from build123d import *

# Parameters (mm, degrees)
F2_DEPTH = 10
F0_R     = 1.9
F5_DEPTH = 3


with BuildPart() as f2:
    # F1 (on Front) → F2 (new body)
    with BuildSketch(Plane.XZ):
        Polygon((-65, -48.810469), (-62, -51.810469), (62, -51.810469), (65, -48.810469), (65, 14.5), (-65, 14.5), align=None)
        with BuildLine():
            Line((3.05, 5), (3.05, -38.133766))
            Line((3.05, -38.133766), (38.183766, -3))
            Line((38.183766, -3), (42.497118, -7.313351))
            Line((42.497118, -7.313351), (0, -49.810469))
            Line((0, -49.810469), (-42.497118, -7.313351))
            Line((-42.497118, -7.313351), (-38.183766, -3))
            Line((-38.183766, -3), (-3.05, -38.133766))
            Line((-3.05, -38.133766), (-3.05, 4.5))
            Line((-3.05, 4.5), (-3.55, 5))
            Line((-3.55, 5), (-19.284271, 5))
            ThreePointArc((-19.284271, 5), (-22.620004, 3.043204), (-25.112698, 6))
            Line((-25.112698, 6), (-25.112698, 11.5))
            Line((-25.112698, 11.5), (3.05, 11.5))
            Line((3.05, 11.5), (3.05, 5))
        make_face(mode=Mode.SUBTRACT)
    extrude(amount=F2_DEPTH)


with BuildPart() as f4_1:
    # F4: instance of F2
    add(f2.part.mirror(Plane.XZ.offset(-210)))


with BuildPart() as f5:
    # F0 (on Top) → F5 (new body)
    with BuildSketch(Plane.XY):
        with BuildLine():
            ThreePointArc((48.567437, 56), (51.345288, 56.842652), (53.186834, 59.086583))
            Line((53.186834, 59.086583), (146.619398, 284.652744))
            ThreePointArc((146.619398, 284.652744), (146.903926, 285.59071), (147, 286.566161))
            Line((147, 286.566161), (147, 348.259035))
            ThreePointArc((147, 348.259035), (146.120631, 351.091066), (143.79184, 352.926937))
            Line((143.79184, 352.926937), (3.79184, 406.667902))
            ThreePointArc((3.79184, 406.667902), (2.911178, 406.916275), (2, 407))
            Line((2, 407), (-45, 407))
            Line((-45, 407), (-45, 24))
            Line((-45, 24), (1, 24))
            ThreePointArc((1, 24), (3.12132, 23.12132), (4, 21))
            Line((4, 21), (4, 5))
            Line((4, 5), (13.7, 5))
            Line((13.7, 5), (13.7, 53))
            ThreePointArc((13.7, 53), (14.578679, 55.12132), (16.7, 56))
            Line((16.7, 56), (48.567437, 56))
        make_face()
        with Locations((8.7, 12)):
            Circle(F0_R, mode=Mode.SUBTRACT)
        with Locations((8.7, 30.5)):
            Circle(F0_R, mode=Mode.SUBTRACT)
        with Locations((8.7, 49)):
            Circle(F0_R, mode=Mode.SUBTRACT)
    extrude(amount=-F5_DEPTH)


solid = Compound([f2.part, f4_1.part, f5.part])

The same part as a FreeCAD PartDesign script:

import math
import FreeCAD as App
import Part
import Sketcher

V = App.Vector

doc = App.newDocument("Part")
params = doc.addObject("Spreadsheet::Sheet", "Params")
for row, (alias, value) in enumerate([
    ("sketch1_radius", "3 mm"),
    ("sketch1_width", "124 mm"),
    ("sketch1_width2", "130 mm"),
    ("sketch1_height", "5.5 mm"),
    ("sketch1_length", "6.1 mm"),
    ("pad1_length", "10 mm"),
    ("sketch2_radius", "4.999999 mm"),
    ("sketch2_radius2", "5 mm"),
    ("sketch2_radius3", "3.000001 mm"),
    ("sketch2_radius4", "2.999999 mm"),
    ("sketch2_diameter", "3.8 mm"),
    ("pad2_length", "3 mm"),
], start=1):
    params.set(f"A{row}", alias)
    params.set(f"B{row}", "=" + value)
    params.setAlias(f"B{row}", alias)

body = doc.addObject("PartDesign::Body", "Body")

sketch1 = body.newObject("Sketcher::SketchObject", "Sketch")
sketch1.AttachmentSupport = (doc.getObject("XZ_Plane"), [""])
sketch1.MapMode = "FlatFace"
sketch1.addGeometry([
    Part.LineSegment(V(-65, -48.810469, 0), V(-62, -51.810469, 0)),
    Part.LineSegment(V(-62, -51.810469, 0), V(62, -51.810469, 0)),
    Part.LineSegment(V(62, -51.810469, 0), V(65, -48.810469, 0)),
    Part.LineSegment(V(65, -48.810469, 0), V(65, 14.5, 0)),
    Part.LineSegment(V(65, 14.5, 0), V(-65, 14.5, 0)),
    Part.LineSegment(V(-65, 14.5, 0), V(-65, -48.810469, 0)),
    Part.LineSegment(V(3.05, 11.5, 0), V(3.05, -38.133766, 0)),
    Part.LineSegment(V(3.05, -38.133766, 0), V(38.183766, -3, 0)),
    Part.LineSegment(V(38.183766, -3, 0), V(42.497118, -7.313351, 0)),
    Part.LineSegment(V(42.497118, -7.313351, 0), V(0, -49.810469, 0)),
    Part.LineSegment(V(0, -49.810469, 0), V(-42.497118, -7.313351, 0)),
    Part.LineSegment(V(-42.497118, -7.313351, 0), V(-38.183766, -3, 0)),
    Part.LineSegment(V(-38.183766, -3, 0), V(-3.05, -38.133766, 0)),
    Part.LineSegment(V(-3.05, -38.133766, 0), V(-3.05, 4.5, 0)),
    Part.LineSegment(V(-3.05, 4.5, 0), V(-3.55, 5, 0)),
    Part.LineSegment(V(-3.55, 5, 0), V(-19.284271, 5, 0)),
    Part.ArcOfCircle(Part.Circle(V(-22.112698, 6, 0), V(0, 0, 1), 3), math.radians(179.999991), math.radians(340.528788)),
    Part.LineSegment(V(-25.112698, 6, 0), V(-25.112698, 11.5, 0)),
    Part.LineSegment(V(-25.112698, 11.5, 0), V(3.05, 11.5, 0)),
], False)
sketch1.addConstraint([
    Sketcher.Constraint("Coincident", 0, 2, 1, 1),
    Sketcher.Constraint("Coincident", 1, 2, 2, 1),
    Sketcher.Constraint("Coincident", 2, 2, 3, 1),
    Sketcher.Constraint("Coincident", 3, 2, 4, 1),
    Sketcher.Constraint("Coincident", 4, 2, 5, 1),
    Sketcher.Constraint("Coincident", 5, 2, 0, 1),
    Sketcher.Constraint("Coincident", 6, 2, 7, 1),
    Sketcher.Constraint("Coincident", 7, 2, 8, 1),
    Sketcher.Constraint("Coincident", 8, 2, 9, 1),
    Sketcher.Constraint("Coincident", 9, 2, 10, 1),
    Sketcher.Constraint("Coincident", 10, 2, 11, 1),
    Sketcher.Constraint("Coincident", 11, 2, 12, 1),
    Sketcher.Constraint("Coincident", 12, 2, 13, 1),
    Sketcher.Constraint("Coincident", 13, 2, 14, 1),
    Sketcher.Constraint("Coincident", 14, 2, 15, 1),
    Sketcher.Constraint("Coincident", 15, 2, 16, 2),
    Sketcher.Constraint("Tangent", 16, 1, 17, 1),
    Sketcher.Constraint("Coincident", 17, 2, 18, 1),
    Sketcher.Constraint("Coincident", 18, 2, 6, 1),
    Sketcher.Constraint("Horizontal", 1),
    Sketcher.Constraint("Vertical", 3),
    Sketcher.Constraint("Horizontal", 4),
    Sketcher.Constraint("Vertical", 5),
    Sketcher.Constraint("Vertical", 6),
    Sketcher.Constraint("Vertical", 13),
    Sketcher.Constraint("Horizontal", 15),
    Sketcher.Constraint("Vertical", 17),
    Sketcher.Constraint("Horizontal", 18),
    Sketcher.Constraint("Symmetric", 2, 2, 5, 2, -2),
    Sketcher.Constraint("Symmetric", 8, 2, 10, 2, -2),
    Sketcher.Constraint("Symmetric", 7, 2, 11, 2, -2),
    Sketcher.Constraint("Symmetric", 6, 2, 12, 2, -2),
    Sketcher.Constraint("PointOnObject", 9, 2, -2),
    Sketcher.Constraint("Perpendicular", 0, 2),
    Sketcher.Constraint("Parallel", 2, 7),
    Sketcher.Constraint("Perpendicular", 7, 8),
    Sketcher.Constraint("Perpendicular", 8, 9),
    Sketcher.Constraint("Perpendicular", 9, 10),
    Sketcher.Constraint("Parallel", 12, 14),
    Sketcher.Constraint("Radius", 16, 3.0),
    Sketcher.Constraint("DistanceX", 1, 1, 1, 2, 124.0),
    Sketcher.Constraint("DistanceX", 4, 2, 4, 1, 130.0),
    Sketcher.Constraint("DistanceY", 17, 1, 17, 2, 5.5),
    Sketcher.Constraint("DistanceY", -1, 1, 16, 3, 6.0),
    Sketcher.Constraint("DistanceY", 7, 2, -1, 1, 3.0),
    Sketcher.Constraint("DistanceY", -1, 1, 14, 2, 5.0),
    Sketcher.Constraint("DistanceY", 0, 2, 9, 2, 2.0),
    Sketcher.Constraint("DistanceY", 13, 2, 18, 2, 7.0),
    Sketcher.Constraint("Distance", 8, 6.1),
    Sketcher.Constraint("Distance", 9, 60.100001),
    Sketcher.Constraint("DistanceY", -1, 1, 3, 2, 14.5),
    Sketcher.Constraint("DistanceX", 12, 2, 6, 2, 6.1),
    Sketcher.Constraint("DistanceX", 18, 1, 18, 2, 28.162698),
])
sketch1.setExpression("Constraints[39]", "Params.sketch1_radius")
sketch1.setExpression("Constraints[40]", "Params.sketch1_width")
sketch1.setExpression("Constraints[41]", "Params.sketch1_width2")
sketch1.setExpression("Constraints[42]", "Params.sketch1_height")
sketch1.setExpression("Constraints[48]", "Params.sketch1_length")
pad1 = body.newObject("PartDesign::Pad", "Pad")
pad1.Profile = sketch1
pad1.setExpression("Length", "Params.pad1_length")
body2 = doc.addObject("PartDesign::Body", "Body001")
doc.recompute()

mirroring = doc.addObject("Part::Mirroring", "Mirroring")
mirroring.Source = body
mirroring.Base = V(0, 210, 0)
mirroring.Normal = V(0, -1, 0)
body2.BaseFeature = mirroring
doc.recompute()
body3 = doc.addObject("PartDesign::Body", "Body002")

sketch2 = body3.newObject("Sketcher::SketchObject", "Sketch001")
sketch2.AttachmentSupport = (doc.getObject("XY_Plane002"), [""])
sketch2.MapMode = "FlatFace"
sketch2.addGeometry([
    Part.ArcOfCircle(Part.Circle(V(48.567437, 60.999999, 0), V(0, 0, 1), 4.999999), math.radians(-90.000002), math.radians(-22.499988)),
    Part.LineSegment(V(53.186834, 59.086583, 0), V(146.619398, 284.652744, 0)),
    Part.ArcOfCircle(Part.Circle(V(141.999967, 286.566167, 0), V(0, 0, 1), 5.000033), math.radians(-22.499915), math.radians(-0.000067)),
    Part.LineSegment(V(147, 286.566161, 0), V(147, 348.259035, 0)),
    Part.ArcOfCircle(Part.Circle(V(142, 348.259035, 0), V(0, 0, 1), 5), math.radians(0.000002), math.radians(68.999996)),
    Part.LineSegment(V(143.79184, 352.926937, 0), V(3.79184, 406.667902, 0)),
    Part.ArcOfCircle(Part.Circle(V(2.000006, 402.000032, 0), V(0, 0, 1), 4.999968), math.radians(68.999929), math.radians(90.000066)),
    Part.LineSegment(V(2, 407, 0), V(-45, 407, 0)),
    Part.LineSegment(V(-45, 407, 0), V(-45, 24, 0)),
    Part.LineSegment(V(-45, 24, 0), V(1, 24, 0)),
    Part.ArcOfCircle(Part.Circle(V(0.999999, 20.999999, 0), V(0, 0, 1), 3.000001), math.radians(0.000022), math.radians(89.999978)),
    Part.LineSegment(V(4, 21, 0), V(4, 5, 0)),
    Part.LineSegment(V(4, 5, 0), V(13.7, 5, 0)),
    Part.LineSegment(V(13.7, 5, 0), V(13.7, 53, 0)),
    Part.ArcOfCircle(Part.Circle(V(16.699999, 53.000001, 0), V(0, 0, 1), 2.999999), math.radians(89.99999), math.radians(180.00001)),
    Part.LineSegment(V(16.7, 56, 0), V(48.567437, 56, 0)),
    Part.Circle(V(8.7, 12, 0), V(0, 0, 1), 1.9),
    Part.Circle(V(8.7, 30.5, 0), V(0, 0, 1), 1.9),
    Part.Circle(V(8.7, 49, 0), V(0, 0, 1), 1.9),
], False)
sketch2.addConstraint([
    Sketcher.Constraint("Coincident", 0, 2, 1, 1),
    Sketcher.Constraint("Coincident", 1, 2, 2, 1),
    Sketcher.Constraint("Coincident", 2, 2, 3, 1),
    Sketcher.Constraint("Coincident", 3, 2, 4, 1),
    Sketcher.Constraint("Coincident", 4, 2, 5, 1),
    Sketcher.Constraint("Coincident", 5, 2, 6, 1),
    Sketcher.Constraint("Coincident", 6, 2, 7, 1),
    Sketcher.Constraint("Coincident", 7, 2, 8, 1),
    Sketcher.Constraint("Coincident", 8, 2, 9, 1),
    Sketcher.Constraint("Coincident", 9, 2, 10, 2),
    Sketcher.Constraint("Coincident", 10, 1, 11, 1),
    Sketcher.Constraint("Coincident", 11, 2, 12, 1),
    Sketcher.Constraint("Coincident", 12, 2, 13, 1),
    Sketcher.Constraint("Coincident", 13, 2, 14, 2),
    Sketcher.Constraint("Coincident", 14, 1, 15, 1),
    Sketcher.Constraint("Coincident", 15, 2, 0, 1),
    Sketcher.Constraint("Vertical", 3),
    Sketcher.Constraint("Horizontal", 7),
    Sketcher.Constraint("Vertical", 8),
    Sketcher.Constraint("Horizontal", 9),
    Sketcher.Constraint("Vertical", 11),
    Sketcher.Constraint("Horizontal", 12),
    Sketcher.Constraint("Vertical", 13),
    Sketcher.Constraint("Horizontal", 15),
    Sketcher.Constraint("Radius", 0, 4.999999),
    Sketcher.Constraint("Radius", 4, 5.0),
    Sketcher.Constraint("Radius", 10, 3.000001),
    Sketcher.Constraint("Radius", 14, 2.999999),
    Sketcher.Constraint("Diameter", 16, 3.8),
    Sketcher.Constraint("Diameter", 17, 3.8),
    Sketcher.Constraint("Diameter", 18, 3.8),
    Sketcher.Constraint("DistanceX", 7, 2, 7, 1, 47.0),
    Sketcher.Constraint("DistanceX", 9, 1, 9, 2, 46.0),
    Sketcher.Constraint("DistanceY", 8, 2, 8, 1, 383.0),
    Sketcher.Constraint("DistanceY", 11, 2, 11, 1, 16.0),
    Sketcher.Constraint("DistanceY", 13, 1, 13, 2, 48.0),
    Sketcher.Constraint("DistanceX", 12, 1, 12, 2, 9.7),
    Sketcher.Constraint("DistanceY", -1, 1, 0, 3, 60.999999),
    Sketcher.Constraint("DistanceX", -1, 1, 4, 3, 142.0),
    Sketcher.Constraint("DistanceX", -1, 1, 10, 3, 0.999999),
    Sketcher.Constraint("DistanceY", -1, 1, 10, 3, 20.999999),
    Sketcher.Constraint("DistanceY", -1, 1, 16, 3, 12.0),
    Sketcher.Constraint("DistanceY", -1, 1, 18, 3, 49.0),
    Sketcher.Constraint("DistanceX", -1, 1, 6, 2, 2.0),
    Sketcher.Constraint("DistanceY", -1, 1, 10, 1, 21.0),
    Sketcher.Constraint("DistanceX", 16, 3, 14, 3, 7.999999),
    Sketcher.Constraint("DistanceX", 17, 3, 14, 3, 7.999999),
    Sketcher.Constraint("DistanceX", 18, 3, 14, 3, 7.999999),
    Sketcher.Constraint("DistanceX", 5, 2, 4, 2, 140.0),
    Sketcher.Constraint("DistanceX", 13, 2, 14, 1, 3.0),
    Sketcher.Constraint("DistanceY", -1, 1, 17, 3, 30.5),
    Sketcher.Constraint("Radius", 6, 4.999968),
    Sketcher.Constraint("Radius", 2, 5.000033),
    Sketcher.Constraint("Distance", 5, 149.960299),
    Sketcher.Constraint("DistanceX", 4, 3, 1, 2, 4.619398),
    Sketcher.Constraint("DistanceX", 15, 1, 15, 2, 31.867437),
    Sketcher.Constraint("DistanceY", 3, 1, 3, 2, 61.692874),
    Sketcher.Constraint("DistanceY", -1, 1, 2, 2, 286.566161),
    Sketcher.Constraint("DistanceX", -1, 1, 4, 2, 143.79184),
    Sketcher.Constraint("DistanceX", 0, 3, 2, 3, 93.43253),
    Sketcher.Constraint("DistanceY", 0, 3, 2, 3, 225.566168),
    Sketcher.Constraint("DistanceX", 6, 3, 2, 3, 139.999962),
    Sketcher.Constraint("DistanceY", 0, 2, 1, 2, 225.566161),
])
sketch2.setExpression("Constraints[24]", "Params.sketch2_radius")
sketch2.setExpression("Constraints[25]", "Params.sketch2_radius2")
sketch2.setExpression("Constraints[26]", "Params.sketch2_radius3")
sketch2.setExpression("Constraints[27]", "Params.sketch2_radius4")
sketch2.setExpression("Constraints[28]", "Params.sketch2_diameter")
pad2 = body3.newObject("PartDesign::Pad", "Pad001")
pad2.Profile = sketch2
pad2.setExpression("Length", "Params.pad2_length")
pad2.Reversed = True
mirroring.Visibility = False

doc.recompute()
